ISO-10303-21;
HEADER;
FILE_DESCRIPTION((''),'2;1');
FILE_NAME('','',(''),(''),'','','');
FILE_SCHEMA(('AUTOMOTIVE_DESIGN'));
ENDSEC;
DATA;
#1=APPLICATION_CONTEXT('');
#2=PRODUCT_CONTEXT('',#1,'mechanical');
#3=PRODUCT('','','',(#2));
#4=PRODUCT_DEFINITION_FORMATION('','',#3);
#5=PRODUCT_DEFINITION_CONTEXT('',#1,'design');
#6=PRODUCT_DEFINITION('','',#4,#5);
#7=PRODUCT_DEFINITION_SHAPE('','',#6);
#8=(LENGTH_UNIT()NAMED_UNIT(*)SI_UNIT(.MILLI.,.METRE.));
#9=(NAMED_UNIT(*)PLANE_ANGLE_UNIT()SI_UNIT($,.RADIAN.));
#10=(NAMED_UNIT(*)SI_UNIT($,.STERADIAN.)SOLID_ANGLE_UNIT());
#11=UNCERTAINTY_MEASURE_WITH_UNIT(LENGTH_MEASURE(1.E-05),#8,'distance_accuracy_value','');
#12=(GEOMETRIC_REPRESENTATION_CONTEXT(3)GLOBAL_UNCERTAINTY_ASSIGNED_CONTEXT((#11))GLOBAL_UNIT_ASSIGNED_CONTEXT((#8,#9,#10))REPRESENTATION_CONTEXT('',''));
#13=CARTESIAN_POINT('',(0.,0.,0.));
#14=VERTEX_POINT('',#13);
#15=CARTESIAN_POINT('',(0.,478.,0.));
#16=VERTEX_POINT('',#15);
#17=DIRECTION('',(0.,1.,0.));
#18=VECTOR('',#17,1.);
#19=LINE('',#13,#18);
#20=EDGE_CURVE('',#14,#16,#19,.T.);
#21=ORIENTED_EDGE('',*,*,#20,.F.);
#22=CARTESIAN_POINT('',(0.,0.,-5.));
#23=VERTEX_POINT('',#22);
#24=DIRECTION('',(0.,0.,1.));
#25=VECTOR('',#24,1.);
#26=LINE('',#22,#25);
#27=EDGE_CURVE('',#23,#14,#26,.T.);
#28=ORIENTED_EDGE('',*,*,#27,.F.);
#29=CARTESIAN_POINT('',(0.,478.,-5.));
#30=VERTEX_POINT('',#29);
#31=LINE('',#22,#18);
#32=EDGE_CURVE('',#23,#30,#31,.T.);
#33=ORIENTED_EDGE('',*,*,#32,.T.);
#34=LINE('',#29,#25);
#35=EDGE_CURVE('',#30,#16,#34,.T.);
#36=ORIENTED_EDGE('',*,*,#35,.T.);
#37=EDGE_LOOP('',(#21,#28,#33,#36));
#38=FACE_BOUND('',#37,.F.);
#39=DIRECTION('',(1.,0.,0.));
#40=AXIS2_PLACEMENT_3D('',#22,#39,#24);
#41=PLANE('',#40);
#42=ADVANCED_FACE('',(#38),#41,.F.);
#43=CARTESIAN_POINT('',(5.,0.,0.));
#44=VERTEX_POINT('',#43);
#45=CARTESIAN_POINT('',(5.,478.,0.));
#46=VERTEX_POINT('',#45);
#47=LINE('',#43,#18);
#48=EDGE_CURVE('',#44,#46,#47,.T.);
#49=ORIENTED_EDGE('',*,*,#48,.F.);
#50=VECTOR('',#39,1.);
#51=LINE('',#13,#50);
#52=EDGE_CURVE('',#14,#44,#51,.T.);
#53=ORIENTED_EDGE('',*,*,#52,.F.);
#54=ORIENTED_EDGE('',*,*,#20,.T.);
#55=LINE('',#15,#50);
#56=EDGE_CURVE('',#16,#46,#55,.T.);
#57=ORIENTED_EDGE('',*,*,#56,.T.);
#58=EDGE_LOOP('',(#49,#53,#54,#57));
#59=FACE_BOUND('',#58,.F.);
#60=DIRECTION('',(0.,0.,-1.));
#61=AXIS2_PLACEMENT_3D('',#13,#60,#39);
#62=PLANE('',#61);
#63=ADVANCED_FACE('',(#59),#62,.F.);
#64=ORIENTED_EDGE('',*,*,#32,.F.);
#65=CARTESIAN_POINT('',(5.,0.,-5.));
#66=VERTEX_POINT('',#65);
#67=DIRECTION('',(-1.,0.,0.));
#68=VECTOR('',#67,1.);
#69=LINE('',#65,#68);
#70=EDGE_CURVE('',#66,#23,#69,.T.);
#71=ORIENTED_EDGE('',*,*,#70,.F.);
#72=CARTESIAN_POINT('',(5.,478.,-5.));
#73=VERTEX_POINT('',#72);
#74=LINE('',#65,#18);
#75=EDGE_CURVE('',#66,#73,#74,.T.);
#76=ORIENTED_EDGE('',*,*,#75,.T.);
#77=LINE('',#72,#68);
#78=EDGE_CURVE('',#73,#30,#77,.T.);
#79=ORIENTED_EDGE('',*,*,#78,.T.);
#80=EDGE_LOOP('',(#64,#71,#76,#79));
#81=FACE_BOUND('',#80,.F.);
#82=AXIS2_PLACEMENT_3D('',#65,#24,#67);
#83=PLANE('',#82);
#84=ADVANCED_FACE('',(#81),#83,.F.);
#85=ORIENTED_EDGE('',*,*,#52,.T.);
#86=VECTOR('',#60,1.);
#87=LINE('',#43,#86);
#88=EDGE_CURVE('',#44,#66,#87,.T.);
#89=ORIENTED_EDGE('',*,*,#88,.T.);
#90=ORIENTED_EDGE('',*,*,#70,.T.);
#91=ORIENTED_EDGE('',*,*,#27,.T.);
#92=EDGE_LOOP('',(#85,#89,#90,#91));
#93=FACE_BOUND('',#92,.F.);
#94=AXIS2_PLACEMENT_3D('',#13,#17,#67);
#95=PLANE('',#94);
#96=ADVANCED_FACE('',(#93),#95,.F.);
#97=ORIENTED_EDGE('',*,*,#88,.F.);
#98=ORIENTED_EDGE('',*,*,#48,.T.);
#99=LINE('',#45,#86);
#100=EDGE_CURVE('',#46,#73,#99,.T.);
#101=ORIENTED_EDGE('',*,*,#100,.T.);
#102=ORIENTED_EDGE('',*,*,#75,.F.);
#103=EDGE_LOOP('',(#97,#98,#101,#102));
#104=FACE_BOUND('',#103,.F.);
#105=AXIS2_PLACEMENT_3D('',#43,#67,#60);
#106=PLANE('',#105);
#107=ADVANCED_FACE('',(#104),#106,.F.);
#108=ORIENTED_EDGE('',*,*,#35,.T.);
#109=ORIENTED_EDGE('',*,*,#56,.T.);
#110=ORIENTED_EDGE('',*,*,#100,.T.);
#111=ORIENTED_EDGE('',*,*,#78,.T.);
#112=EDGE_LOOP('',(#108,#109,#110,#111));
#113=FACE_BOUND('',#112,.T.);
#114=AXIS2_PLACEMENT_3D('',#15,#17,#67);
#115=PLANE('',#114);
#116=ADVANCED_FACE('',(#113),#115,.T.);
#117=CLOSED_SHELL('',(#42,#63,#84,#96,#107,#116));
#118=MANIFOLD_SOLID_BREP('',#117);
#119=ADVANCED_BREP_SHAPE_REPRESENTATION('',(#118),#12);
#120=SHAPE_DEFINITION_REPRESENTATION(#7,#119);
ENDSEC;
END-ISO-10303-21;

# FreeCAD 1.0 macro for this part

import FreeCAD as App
import Part
import Sketcher


def add_polygon(sketch, points):
    """Adds a closed chain of lines whose ends are joined by coincident constraints."""
    first, n = sketch.GeometryCount, len(points)
    for a, b in zip(points, points[1:] + points[:1]):
        sketch.addGeometry(Part.LineSegment(App.Vector(*a, 0), App.Vector(*b, 0)), False)
    for i in range(n):
        sketch.addConstraint(Sketcher.Constraint("Coincident", first + i, 2, first + (i + 1) % n, 1))

doc = App.newDocument("Part")
body = doc.addObject("PartDesign::Body", "Body")

# Sketch on XZ plane
sketch1 = body.newObject("Sketcher::SketchObject", "Sketch")
sketch1.AttachmentSupport = (doc.getObject("XZ_Plane"), [""])
sketch1.MapMode = "FlatFace"
add_polygon(sketch1, [(0, -5), (0, 0), (5, 0), (5, -5)])  # lines 0-3
sketch1.addConstraint([
    Sketcher.Constraint("Vertical", 0),
    Sketcher.Constraint("Horizontal", 1),
    Sketcher.Constraint("Vertical", 2),
    Sketcher.Constraint("Horizontal", 3),
    Sketcher.Constraint("Coincident", 0, 2, -1, 1),
    Sketcher.Constraint("Equal", 3, 0),
    Sketcher.Constraint("DistanceX", 1, 1, 1, 2, 5.0),
])
pad1 = body.newObject("PartDesign::Pad", "Pad")
pad1.Profile = sketch1
pad1.Length = 478
pad1.Reversed = True

doc.recompute()
